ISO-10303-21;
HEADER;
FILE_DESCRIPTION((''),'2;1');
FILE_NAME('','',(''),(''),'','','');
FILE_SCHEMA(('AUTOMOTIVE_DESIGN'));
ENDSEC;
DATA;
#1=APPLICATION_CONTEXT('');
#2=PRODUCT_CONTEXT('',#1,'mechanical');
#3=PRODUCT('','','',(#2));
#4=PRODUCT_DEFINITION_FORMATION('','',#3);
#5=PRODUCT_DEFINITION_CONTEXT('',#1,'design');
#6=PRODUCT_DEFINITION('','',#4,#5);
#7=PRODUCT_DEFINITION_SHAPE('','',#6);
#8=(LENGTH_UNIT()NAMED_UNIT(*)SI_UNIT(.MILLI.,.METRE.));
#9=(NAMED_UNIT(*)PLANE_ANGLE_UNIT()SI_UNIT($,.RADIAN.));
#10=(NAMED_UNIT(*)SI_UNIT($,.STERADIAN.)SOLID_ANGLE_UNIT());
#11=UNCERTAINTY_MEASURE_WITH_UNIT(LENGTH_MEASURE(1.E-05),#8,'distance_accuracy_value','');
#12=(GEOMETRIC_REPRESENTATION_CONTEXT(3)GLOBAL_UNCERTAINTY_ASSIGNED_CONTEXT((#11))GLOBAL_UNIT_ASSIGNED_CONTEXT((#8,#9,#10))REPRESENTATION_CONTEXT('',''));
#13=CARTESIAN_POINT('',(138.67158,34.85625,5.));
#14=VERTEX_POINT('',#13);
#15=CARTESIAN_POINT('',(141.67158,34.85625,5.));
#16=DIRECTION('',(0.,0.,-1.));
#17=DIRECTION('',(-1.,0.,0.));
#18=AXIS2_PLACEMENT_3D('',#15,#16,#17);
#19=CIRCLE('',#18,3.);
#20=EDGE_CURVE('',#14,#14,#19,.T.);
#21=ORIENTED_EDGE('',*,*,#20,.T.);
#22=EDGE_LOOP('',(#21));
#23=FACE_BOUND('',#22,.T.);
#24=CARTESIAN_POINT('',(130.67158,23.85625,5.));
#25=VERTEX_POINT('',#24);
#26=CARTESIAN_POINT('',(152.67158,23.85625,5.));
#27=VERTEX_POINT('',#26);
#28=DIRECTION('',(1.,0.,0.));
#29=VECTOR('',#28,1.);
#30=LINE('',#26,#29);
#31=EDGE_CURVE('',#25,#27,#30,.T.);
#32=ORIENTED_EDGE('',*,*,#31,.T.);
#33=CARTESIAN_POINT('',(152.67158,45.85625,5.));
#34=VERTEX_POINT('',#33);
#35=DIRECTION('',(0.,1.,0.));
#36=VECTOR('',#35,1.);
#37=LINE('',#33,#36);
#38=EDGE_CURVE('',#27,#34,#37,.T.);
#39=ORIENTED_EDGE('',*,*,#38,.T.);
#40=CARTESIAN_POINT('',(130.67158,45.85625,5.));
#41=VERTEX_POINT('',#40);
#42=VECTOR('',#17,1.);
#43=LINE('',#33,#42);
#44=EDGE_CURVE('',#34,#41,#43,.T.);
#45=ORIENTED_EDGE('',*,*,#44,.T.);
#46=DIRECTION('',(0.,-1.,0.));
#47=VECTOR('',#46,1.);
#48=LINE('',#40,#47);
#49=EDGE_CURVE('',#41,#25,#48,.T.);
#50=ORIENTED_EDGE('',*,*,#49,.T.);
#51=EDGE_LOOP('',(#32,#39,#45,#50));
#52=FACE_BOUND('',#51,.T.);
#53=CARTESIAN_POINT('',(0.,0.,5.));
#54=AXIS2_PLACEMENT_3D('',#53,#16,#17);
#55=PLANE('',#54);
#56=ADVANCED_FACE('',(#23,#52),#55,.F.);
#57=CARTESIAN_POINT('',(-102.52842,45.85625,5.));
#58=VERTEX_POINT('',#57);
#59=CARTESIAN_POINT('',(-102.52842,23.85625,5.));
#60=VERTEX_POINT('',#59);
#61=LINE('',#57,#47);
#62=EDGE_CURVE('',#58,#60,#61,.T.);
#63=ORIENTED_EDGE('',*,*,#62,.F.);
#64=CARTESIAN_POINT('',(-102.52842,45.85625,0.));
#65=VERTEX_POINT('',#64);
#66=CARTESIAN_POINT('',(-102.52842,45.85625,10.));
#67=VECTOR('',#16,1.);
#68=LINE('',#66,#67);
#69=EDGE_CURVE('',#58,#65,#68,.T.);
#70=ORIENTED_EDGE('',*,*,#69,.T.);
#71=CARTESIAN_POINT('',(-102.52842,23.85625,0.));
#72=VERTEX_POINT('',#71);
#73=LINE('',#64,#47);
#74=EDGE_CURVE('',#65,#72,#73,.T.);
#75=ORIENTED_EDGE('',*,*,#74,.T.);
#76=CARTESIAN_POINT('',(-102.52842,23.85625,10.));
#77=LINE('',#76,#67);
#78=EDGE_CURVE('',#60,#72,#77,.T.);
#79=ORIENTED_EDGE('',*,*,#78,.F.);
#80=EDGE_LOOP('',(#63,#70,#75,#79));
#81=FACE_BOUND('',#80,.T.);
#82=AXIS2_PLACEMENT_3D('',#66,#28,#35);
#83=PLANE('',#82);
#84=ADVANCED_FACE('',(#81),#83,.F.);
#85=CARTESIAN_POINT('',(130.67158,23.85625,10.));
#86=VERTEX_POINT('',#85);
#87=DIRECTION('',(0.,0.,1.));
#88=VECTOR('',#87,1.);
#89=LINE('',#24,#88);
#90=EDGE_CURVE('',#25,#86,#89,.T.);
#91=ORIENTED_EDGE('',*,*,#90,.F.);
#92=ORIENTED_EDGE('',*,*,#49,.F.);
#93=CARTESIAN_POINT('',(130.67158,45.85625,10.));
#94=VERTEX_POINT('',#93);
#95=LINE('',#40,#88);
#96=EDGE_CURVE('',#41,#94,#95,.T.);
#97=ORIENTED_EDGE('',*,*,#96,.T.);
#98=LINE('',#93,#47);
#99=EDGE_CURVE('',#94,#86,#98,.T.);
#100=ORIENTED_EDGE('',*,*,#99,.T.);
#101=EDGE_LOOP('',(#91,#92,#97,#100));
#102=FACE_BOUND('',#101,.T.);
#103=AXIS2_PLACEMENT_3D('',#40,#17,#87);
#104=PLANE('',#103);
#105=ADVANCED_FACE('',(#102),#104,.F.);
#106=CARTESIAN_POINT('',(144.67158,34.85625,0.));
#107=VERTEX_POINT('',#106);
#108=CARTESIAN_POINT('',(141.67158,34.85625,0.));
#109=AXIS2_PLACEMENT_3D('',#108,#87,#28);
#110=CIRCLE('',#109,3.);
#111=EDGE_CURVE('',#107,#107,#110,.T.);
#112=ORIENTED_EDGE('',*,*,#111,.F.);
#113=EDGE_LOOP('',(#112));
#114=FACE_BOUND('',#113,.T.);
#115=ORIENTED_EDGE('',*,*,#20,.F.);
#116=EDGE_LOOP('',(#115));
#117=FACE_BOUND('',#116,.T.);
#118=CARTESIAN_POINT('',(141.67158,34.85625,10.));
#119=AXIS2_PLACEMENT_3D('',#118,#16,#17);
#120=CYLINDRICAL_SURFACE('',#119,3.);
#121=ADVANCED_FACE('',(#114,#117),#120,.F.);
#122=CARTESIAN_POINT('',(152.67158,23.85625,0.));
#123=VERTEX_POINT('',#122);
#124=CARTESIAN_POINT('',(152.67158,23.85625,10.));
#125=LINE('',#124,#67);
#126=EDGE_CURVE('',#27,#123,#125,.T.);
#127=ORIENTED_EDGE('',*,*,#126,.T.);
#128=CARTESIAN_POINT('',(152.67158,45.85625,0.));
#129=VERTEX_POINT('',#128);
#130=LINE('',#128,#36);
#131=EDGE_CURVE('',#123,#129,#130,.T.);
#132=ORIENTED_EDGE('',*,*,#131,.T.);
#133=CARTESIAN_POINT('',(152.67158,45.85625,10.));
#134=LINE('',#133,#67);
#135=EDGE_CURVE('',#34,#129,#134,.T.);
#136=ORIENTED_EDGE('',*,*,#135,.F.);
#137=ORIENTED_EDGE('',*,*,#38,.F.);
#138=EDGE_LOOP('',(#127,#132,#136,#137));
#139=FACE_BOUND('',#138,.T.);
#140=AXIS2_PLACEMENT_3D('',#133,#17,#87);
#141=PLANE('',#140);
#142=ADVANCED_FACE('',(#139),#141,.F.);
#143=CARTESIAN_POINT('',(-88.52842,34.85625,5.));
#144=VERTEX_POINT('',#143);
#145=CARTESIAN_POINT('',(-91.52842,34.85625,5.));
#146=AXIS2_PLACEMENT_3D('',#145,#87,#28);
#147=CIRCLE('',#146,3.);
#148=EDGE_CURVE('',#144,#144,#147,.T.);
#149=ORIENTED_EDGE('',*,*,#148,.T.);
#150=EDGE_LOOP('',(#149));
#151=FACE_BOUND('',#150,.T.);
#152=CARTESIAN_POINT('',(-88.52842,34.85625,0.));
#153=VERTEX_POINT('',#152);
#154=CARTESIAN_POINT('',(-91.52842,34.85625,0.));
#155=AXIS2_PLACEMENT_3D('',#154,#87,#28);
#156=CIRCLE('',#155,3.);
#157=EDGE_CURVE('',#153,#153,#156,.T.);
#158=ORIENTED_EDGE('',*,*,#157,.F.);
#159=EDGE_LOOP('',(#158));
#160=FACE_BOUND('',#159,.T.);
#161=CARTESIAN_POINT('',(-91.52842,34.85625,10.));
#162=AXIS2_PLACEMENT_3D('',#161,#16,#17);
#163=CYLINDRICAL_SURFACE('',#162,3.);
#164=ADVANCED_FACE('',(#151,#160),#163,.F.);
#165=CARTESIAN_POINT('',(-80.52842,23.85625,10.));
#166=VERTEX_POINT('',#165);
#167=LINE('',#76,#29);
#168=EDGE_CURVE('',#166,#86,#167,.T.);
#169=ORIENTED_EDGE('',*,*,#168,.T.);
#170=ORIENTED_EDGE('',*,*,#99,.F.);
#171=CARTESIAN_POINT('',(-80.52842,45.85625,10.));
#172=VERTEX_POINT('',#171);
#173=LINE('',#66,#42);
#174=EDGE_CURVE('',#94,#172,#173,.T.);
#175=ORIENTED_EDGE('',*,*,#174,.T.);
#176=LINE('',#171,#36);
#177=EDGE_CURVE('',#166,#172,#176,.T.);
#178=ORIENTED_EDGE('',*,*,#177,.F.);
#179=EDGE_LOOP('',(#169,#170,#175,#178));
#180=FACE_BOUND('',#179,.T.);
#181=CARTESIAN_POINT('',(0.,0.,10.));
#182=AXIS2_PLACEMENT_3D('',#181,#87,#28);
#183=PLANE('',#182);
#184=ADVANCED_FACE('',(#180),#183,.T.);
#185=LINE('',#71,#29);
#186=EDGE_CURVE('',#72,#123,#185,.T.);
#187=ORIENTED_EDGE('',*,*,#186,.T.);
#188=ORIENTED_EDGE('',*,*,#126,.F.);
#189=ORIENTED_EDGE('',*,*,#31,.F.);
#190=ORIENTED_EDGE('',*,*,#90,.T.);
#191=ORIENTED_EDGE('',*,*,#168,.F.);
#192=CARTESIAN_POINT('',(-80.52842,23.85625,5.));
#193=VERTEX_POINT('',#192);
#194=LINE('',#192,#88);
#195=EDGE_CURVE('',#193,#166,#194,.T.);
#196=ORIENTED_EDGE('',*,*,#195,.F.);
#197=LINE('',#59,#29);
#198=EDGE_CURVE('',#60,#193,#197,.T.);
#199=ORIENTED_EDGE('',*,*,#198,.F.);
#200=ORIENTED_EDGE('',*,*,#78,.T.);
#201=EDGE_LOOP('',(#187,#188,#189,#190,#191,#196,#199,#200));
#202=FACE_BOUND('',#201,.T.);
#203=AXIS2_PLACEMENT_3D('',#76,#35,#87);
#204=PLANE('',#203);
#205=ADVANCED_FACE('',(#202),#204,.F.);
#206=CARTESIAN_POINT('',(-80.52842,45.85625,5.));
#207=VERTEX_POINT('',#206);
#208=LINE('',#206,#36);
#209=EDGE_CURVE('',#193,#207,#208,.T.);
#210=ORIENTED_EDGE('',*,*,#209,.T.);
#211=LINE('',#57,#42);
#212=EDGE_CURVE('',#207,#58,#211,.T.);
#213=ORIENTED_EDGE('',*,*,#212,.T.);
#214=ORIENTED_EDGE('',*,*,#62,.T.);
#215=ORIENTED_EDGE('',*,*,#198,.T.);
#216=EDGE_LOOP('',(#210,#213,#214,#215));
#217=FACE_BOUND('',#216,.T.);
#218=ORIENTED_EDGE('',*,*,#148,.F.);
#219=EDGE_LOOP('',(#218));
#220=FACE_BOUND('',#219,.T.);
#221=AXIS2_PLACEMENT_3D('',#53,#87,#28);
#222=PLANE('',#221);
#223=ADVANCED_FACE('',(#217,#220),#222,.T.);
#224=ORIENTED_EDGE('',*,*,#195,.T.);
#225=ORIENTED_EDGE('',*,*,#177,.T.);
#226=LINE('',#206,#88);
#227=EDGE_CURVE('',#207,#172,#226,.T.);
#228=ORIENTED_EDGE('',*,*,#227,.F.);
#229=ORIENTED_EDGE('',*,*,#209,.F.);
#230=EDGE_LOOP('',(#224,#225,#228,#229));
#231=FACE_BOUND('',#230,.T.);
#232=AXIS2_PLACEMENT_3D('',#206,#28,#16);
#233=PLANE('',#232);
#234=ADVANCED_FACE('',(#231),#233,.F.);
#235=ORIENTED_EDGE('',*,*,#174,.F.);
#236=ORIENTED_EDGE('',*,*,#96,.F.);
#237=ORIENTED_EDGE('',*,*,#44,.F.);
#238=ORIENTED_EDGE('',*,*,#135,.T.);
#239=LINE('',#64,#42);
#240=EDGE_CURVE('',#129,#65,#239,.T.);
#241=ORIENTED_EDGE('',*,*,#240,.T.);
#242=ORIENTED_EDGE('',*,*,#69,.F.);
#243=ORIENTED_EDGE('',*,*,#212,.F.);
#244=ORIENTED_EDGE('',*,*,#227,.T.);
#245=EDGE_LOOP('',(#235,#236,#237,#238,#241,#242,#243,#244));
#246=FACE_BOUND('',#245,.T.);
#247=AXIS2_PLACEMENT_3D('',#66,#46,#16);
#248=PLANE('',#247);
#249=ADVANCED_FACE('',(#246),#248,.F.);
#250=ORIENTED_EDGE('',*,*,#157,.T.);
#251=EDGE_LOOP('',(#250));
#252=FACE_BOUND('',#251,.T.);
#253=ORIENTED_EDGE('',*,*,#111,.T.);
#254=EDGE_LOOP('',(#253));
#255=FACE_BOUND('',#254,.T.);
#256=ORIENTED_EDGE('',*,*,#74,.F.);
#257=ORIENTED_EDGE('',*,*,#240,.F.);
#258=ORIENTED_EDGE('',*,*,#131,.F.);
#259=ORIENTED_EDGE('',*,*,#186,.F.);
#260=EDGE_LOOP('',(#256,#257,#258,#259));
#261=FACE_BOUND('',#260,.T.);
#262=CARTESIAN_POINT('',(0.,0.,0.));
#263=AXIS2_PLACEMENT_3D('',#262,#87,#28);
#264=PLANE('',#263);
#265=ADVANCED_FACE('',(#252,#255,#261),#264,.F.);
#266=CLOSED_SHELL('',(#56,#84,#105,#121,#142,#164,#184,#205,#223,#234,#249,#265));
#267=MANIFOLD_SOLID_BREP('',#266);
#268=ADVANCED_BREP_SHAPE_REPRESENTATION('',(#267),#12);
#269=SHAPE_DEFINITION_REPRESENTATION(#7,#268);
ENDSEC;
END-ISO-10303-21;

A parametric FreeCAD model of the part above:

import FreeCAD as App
import Part
import Sketcher

doc = App.newDocument("Part")
body = doc.addObject("PartDesign::Body", "Body")

# Sketch on XY plane
sketch1 = body.newObject("Sketcher::SketchObject", "Sketch")
sketch1.AttachmentSupport = (doc.getObject("XY_Plane"), [""])
sketch1.MapMode = "FlatFace"
sketch1.addGeometry([
    Part.LineSegment(App.Vector(-102.5, 45.9, 0), App.Vector(-102.5, 23.9, 0)),  # 0
    Part.LineSegment(App.Vector(-102.5, 23.9, 0), App.Vector(152.7, 23.9, 0)),  # 1
    Part.LineSegment(App.Vector(152.7, 23.9, 0), App.Vector(152.7, 45.9, 0)),  # 2
    Part.LineSegment(App.Vector(152.7, 45.9, 0), App.Vector(-102.5, 45.9, 0)),  # 3
    Part.Circle(App.Vector(-91.5, 34.9, 0), App.Vector(0, 0, 1), 3),  # 4
    Part.Circle(App.Vector(141.7, 34.9, 0), App.Vector(0, 0, 1), 3),  # 5
], False)
sketch1.addConstraint([
    Sketcher.Constraint("Coincident", 0, 2, 1, 1),
    Sketcher.Constraint("Coincident", 1, 2, 2, 1),
    Sketcher.Constraint("Coincident", 2, 2, 3, 1),
    Sketcher.Constraint("Coincident", 3, 2, 0, 1),
    Sketcher.Constraint("Vertical", 0),
    Sketcher.Constraint("Horizontal", 1),
    Sketcher.Constraint("Vertical", 2),
    Sketcher.Constraint("Horizontal", 3),
    Sketcher.Constraint("Equal", 4, 5),
    Sketcher.Constraint("Horizontal", 4, 3, 5, 3),
    Sketcher.Constraint("Diameter", 4, 6.0),
    Sketcher.Constraint("DistanceY", 0, 2, 0, 1, 22.0),
    Sketcher.Constraint("DistanceX", 1, 1, 1, 2, 255.2),
    Sketcher.Constraint("DistanceX", 0, 2, 4, 3, 11.0),
    Sketcher.Constraint("DistanceY", 0, 2, 4, 3, 11.0),
    Sketcher.Constraint("DistanceX", 5, 3, 1, 2, 11.0),
    Sketcher.Constraint("DistanceX", 4, 3, -1, 1, 91.52842),
    Sketcher.Constraint("DistanceY", -1, 1, 4, 3, 34.85625),
])
pad1 = body.newObject("PartDesign::Pad", "Pad")
pad1.Profile = sketch1
pad1.Length = 10

# Sketch on XY plane
sketch2 = body.newObject("Sketcher::SketchObject", "Sketch001")
sketch2.AttachmentSupport = (doc.getObject("XY_Plane"), [""])
sketch2.MapMode = "FlatFace"
sketch2.AttachmentOffset = App.Placement(App.Vector(0, 0, 10), App.Rotation())
sketch2.addGeometry([
    Part.LineSegment(App.Vector(-103, 46, 0), App.Vector(-103, 24, 0)),  # 0
    Part.LineSegment(App.Vector(-103, 24, 0), App.Vector(-81, 24, 0)),  # 1
    Part.LineSegment(App.Vector(-81, 24, 0), App.Vector(-81, 46, 0)),  # 2
    Part.LineSegment(App.Vector(-81, 46, 0), App.Vector(-103, 46, 0)),  # 3
    Part.LineSegment(App.Vector(131, 46, 0), App.Vector(131, 24, 0)),  # 4
    Part.LineSegment(App.Vector(131, 24, 0), App.Vector(153, 24, 0)),  # 5
    Part.LineSegment(App.Vector(153, 24, 0), App.Vector(153, 46, 0)),  # 6
    Part.LineSegment(App.Vector(153, 46, 0), App.Vector(131, 46, 0)),  # 7
], False)
sketch2.addConstraint([
    Sketcher.Constraint("Coincident", 0, 2, 1, 1),
    Sketcher.Constraint("Coincident", 1, 2, 2, 1),
    Sketcher.Constraint("Coincident", 2, 2, 3, 1),
    Sketcher.Constraint("Coincident", 3, 2, 0, 1),
    Sketcher.Constraint("Coincident", 4, 2, 5, 1),
    Sketcher.Constraint("Coincident", 5, 2, 6, 1),
    Sketcher.Constraint("Coincident", 6, 2, 7, 1),
    Sketcher.Constraint("Coincident", 7, 2, 4, 1),
    Sketcher.Constraint("Vertical", 0),
    Sketcher.Constraint("Horizontal", 1),
    Sketcher.Constraint("Vertical", 2),
    Sketcher.Constraint("Horizontal", 3),
    Sketcher.Constraint("Vertical", 4),
    Sketcher.Constraint("Horizontal", 5),
    Sketcher.Constraint("Vertical", 6),
    Sketcher.Constraint("Horizontal", 7),
    Sketcher.Constraint("Horizontal", 1, 2, 4, 2),
    Sketcher.Constraint("Horizontal", 3, 2, 6, 2),
    Sketcher.Constraint("Equal", 3, 5),
    Sketcher.Constraint("Equal", 7, 0),
    Sketcher.Constraint("DistanceX", 1, 1, 1, 2, 22.0),
    Sketcher.Constraint("DistanceX", 1, 2, 4, 2, 211.2),
    Sketcher.Constraint("DistanceX", 0, 2, -1, 1, 102.52842),
    Sketcher.Constraint("DistanceY", -1, 1, 0, 2, 23.85625),
])
pocket1 = body.newObject("PartDesign::Pocket", "Pocket")
pocket1.Profile = sketch2
pocket1.Length = 5

doc.recompute()
